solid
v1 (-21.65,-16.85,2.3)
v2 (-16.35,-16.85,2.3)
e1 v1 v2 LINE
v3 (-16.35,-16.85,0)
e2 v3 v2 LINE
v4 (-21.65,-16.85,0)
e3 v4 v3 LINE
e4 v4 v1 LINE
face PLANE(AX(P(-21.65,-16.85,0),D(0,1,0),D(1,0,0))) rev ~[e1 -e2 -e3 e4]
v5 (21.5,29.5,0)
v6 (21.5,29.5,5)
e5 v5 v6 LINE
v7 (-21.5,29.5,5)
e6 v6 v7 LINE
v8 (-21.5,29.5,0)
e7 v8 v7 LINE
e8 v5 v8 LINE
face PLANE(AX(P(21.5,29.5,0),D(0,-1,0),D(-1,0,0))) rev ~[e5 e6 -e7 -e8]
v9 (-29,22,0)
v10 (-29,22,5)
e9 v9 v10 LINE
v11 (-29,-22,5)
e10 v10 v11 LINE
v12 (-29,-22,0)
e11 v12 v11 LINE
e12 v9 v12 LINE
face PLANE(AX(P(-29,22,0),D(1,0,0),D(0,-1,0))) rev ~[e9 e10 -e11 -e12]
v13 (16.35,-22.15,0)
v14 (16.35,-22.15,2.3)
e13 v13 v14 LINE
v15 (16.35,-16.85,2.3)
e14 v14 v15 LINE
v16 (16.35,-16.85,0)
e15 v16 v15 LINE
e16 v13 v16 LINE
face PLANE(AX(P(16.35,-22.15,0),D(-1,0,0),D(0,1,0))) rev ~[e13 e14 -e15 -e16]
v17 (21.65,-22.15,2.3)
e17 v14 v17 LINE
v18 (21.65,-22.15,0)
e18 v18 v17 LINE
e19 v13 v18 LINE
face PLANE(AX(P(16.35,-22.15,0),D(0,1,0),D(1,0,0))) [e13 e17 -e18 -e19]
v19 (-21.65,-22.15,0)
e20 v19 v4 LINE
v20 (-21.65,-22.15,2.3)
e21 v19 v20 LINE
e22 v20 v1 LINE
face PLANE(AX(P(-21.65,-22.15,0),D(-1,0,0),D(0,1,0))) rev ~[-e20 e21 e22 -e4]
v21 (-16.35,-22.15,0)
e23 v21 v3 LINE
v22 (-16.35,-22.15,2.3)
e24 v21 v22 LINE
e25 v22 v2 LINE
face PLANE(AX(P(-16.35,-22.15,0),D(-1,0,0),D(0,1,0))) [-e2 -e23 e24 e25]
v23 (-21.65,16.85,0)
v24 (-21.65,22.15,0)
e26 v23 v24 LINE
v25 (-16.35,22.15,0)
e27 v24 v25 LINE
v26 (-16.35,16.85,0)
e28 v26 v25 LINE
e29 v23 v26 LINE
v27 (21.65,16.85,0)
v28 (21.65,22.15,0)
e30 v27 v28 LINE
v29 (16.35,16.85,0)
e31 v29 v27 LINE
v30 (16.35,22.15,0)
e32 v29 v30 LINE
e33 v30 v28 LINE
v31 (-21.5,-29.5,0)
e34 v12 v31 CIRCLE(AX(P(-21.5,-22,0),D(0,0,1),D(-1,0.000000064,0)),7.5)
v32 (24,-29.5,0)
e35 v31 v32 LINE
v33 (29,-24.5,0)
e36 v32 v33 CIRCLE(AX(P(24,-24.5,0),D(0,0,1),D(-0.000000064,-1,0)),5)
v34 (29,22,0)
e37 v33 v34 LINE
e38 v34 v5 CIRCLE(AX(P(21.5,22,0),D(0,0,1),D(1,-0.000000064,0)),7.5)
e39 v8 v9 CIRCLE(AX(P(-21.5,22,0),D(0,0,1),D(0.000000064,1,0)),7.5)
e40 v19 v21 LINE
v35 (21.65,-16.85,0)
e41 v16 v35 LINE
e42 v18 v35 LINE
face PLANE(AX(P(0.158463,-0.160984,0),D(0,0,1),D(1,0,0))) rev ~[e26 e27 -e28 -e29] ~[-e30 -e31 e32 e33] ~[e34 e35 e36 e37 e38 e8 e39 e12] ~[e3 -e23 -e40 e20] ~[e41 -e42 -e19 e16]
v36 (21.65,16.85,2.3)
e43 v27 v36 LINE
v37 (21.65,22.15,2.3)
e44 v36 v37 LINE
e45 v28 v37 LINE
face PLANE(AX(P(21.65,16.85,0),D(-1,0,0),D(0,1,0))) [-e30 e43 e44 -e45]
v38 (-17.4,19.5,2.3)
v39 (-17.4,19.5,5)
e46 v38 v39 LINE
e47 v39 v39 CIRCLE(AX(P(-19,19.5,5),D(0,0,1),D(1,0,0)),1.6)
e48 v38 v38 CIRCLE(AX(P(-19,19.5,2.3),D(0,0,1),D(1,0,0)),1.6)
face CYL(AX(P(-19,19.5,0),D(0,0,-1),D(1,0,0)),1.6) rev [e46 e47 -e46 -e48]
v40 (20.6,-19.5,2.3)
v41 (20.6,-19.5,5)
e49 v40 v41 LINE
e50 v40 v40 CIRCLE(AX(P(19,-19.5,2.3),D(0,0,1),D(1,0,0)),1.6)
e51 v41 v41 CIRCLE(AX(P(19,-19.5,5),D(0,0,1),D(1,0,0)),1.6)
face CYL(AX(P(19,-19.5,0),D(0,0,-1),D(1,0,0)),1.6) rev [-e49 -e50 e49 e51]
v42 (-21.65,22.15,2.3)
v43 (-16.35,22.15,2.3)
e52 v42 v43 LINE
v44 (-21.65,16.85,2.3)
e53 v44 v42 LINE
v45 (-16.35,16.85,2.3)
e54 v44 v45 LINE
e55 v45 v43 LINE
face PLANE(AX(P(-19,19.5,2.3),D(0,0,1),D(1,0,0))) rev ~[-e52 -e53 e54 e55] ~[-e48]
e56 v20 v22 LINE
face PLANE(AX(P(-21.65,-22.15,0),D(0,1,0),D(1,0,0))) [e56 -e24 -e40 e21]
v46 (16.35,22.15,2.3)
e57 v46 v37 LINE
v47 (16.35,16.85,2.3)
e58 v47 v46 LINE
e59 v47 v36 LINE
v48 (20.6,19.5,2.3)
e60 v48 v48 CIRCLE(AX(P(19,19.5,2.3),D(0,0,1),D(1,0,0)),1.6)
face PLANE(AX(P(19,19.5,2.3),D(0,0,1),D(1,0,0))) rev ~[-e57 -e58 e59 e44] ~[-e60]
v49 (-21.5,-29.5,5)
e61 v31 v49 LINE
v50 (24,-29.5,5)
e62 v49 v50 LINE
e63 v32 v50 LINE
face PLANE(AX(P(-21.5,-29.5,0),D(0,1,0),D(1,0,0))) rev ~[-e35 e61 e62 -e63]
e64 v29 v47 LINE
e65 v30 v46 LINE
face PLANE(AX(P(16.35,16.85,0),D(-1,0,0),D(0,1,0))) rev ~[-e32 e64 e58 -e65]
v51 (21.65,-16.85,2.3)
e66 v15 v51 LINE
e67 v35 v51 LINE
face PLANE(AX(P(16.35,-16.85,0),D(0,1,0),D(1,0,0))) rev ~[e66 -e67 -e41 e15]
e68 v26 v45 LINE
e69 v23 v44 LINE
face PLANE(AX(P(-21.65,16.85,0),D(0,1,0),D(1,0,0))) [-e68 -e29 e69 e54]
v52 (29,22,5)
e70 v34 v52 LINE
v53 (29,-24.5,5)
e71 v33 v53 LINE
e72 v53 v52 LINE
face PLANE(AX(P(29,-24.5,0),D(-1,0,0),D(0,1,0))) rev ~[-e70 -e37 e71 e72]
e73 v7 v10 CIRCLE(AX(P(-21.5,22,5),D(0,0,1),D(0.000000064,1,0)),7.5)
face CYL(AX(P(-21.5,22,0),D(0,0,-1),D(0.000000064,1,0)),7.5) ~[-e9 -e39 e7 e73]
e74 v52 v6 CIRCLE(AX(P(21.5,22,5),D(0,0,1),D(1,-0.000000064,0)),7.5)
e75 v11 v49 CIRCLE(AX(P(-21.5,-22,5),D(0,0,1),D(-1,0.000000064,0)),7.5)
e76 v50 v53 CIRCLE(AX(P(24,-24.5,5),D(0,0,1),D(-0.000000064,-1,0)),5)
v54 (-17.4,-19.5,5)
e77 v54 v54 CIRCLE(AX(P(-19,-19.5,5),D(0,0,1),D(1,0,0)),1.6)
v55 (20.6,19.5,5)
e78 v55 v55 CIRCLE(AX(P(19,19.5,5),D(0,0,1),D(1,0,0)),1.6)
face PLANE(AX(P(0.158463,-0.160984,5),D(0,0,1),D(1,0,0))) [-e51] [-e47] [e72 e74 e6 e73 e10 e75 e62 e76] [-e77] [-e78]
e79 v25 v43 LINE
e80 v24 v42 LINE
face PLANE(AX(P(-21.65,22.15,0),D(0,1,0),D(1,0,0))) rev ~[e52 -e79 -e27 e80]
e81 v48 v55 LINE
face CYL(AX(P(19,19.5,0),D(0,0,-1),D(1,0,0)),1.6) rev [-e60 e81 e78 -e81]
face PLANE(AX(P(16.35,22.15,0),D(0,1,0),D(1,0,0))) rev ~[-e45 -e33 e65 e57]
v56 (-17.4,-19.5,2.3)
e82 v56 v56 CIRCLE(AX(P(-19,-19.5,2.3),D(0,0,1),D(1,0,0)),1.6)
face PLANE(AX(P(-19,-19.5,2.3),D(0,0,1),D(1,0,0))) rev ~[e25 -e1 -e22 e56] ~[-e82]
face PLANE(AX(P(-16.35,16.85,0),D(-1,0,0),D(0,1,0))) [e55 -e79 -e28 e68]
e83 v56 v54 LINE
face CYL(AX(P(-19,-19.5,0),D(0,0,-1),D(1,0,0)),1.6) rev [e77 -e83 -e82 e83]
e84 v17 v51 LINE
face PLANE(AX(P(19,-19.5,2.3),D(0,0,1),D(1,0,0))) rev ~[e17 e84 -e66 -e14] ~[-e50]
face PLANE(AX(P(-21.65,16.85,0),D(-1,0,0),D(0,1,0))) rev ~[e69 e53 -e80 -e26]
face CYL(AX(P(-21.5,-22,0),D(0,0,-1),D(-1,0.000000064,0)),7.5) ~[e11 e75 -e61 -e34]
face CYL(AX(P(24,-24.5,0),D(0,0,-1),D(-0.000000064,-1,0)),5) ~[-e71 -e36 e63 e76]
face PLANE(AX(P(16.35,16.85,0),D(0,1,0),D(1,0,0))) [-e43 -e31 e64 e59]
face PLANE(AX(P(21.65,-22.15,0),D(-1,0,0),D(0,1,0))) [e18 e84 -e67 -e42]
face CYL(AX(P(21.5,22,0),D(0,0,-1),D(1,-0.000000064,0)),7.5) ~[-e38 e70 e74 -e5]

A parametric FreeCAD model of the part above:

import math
import FreeCAD as App
import Part
import Sketcher
from FreeCAD import Vector

doc = App.newDocument("Part")
body = doc.addObject("PartDesign::Body", "Body")

# Sketch on XY plane
sketch1 = doc.addObject("Sketcher::SketchObject", "Sketch")
body.addObject(sketch1)
sketch1.AttachmentSupport = (doc.XY_Plane, [""])
sketch1.MapMode = "FlatFace"
sketch1.addGeometry([
    Part.ArcOfCircle(Part.Circle(Vector(21.5, 22, 0), Vector(0, 0, 1), 7.5), math.radians(-0.000004), math.radians(90.000004)),  # 0
    Part.LineSegment(Vector(21.5, 29.5, 0), Vector(-21.5, 29.5, 0)),  # 1
    Part.ArcOfCircle(Part.Circle(Vector(-21.5, 22, 0), Vector(0, 0, 1), 7.5), math.radians(89.999996), math.radians(180.000004)),  # 2
    Part.LineSegment(Vector(-29, 22, 0), Vector(-29, -22, 0)),  # 3
    Part.ArcOfCircle(Part.Circle(Vector(-21.5, -22, 0), Vector(0, 0, 1), 7.5), math.radians(179.999996), math.radians(270.000004)),  # 4
    Part.LineSegment(Vector(-21.5, -29.5, 0), Vector(24, -29.5, 0)),  # 5
    Part.ArcOfCircle(Part.Circle(Vector(24, -24.5, 0), Vector(0, 0, 1), 5), math.radians(-90.000004), math.radians(0.000004)),  # 6
    Part.LineSegment(Vector(29, -24.5, 0), Vector(29, 22, 0)),  # 7
    Part.Circle(Vector(-19, -19.5, 0), Vector(0, 0, 1), 1.6),  # 8
    Part.Circle(Vector(19, -19.5, 0), Vector(0, 0, 1), 1.6),  # 9
    Part.Circle(Vector(-19, 19.5, 0), Vector(0, 0, 1), 1.6),  # 10
    Part.Circle(Vector(19, 19.5, 0), Vector(0, 0, 1), 1.6),  # 11
], False)
sketch1.addConstraint([
    Sketcher.Constraint("Tangent", 0, 2, 1, 1),
    Sketcher.Constraint("Tangent", 1, 2, 2, 1),
    Sketcher.Constraint("Tangent", 2, 2, 3, 1),
    Sketcher.Constraint("Tangent", 3, 2, 4, 1),
    Sketcher.Constraint("Tangent", 4, 2, 5, 1),
    Sketcher.Constraint("Tangent", 5, 2, 6, 1),
    Sketcher.Constraint("Tangent", 6, 2, 7, 1),
    Sketcher.Constraint("Tangent", 7, 2, 0, 1),
    Sketcher.Constraint("Horizontal", 1),
    Sketcher.Constraint("Vertical", 3),
    Sketcher.Constraint("Horizontal", 5),
    Sketcher.Constraint("Vertical", 7),
    Sketcher.Constraint("Equal", 0, 2),
    Sketcher.Constraint("Equal", 2, 4),
    Sketcher.Constraint("Equal", 8, 9),
    Sketcher.Constraint("Equal", 9, 10),
    Sketcher.Constraint("Equal", 10, 11),
    Sketcher.Constraint("Symmetric", 0, 3, 4, 3, -1, 1),
    Sketcher.Constraint("Symmetric", 9, 3, 10, 3, -1, 1),
    Sketcher.Constraint("Symmetric", 8, 3, 11, 3, -1, 1),
    Sketcher.Constraint("Symmetric", 8, 3, 9, 3, -2),
    Sketcher.Constraint("Radius", 6, 5.0),
    Sketcher.Constraint("Diameter", 8, 3.2),
    Sketcher.Constraint("Radius", 0, 7.5),
    Sketcher.Constraint("DistanceX", 1, 2, 1, 1, 43.0),
    Sketcher.Constraint("DistanceY", 3, 2, 3, 1, 44.0),
    Sketcher.Constraint("DistanceX", 8, 3, -1, 1, 19.0),
    Sketcher.Constraint("DistanceY", 6, 3, 8, 3, 5.0),
])
pad1 = doc.addObject("PartDesign::Pad", "Pad")
body.addObject(pad1)
pad1.Profile = sketch1
pad1.Length = 5

# Sketch on XY plane
sketch2 = doc.addObject("Sketcher::SketchObject", "Sketch001")
body.addObject(sketch2)
sketch2.AttachmentSupport = (doc.XY_Plane, [""])
sketch2.MapMode = "FlatFace"
sketch2.addGeometry([
    Part.LineSegment(Vector(-21.65, 22.15, 0), Vector(-21.65, 16.85, 0)),  # 0
    Part.LineSegment(Vector(-21.65, 16.85, 0), Vector(-16.35, 16.85, 0)),  # 1
    Part.LineSegment(Vector(-16.35, 16.85, 0), Vector(-16.35, 22.15, 0)),  # 2
    Part.LineSegment(Vector(-16.35, 22.15, 0), Vector(-21.65, 22.15, 0)),  # 3
    Part.Circle(Vector(-19, 19.5, 0), Vector(0, 0, 1), 1.6),  # 4
    Part.LineSegment(Vector(16.35, 22.15, 0), Vector(16.35, 16.85, 0)),  # 5
    Part.LineSegment(Vector(16.35, 16.85, 0), Vector(21.65, 16.85, 0)),  # 6
    Part.LineSegment(Vector(21.65, 16.85, 0), Vector(21.65, 22.15, 0)),  # 7
    Part.LineSegment(Vector(21.65, 22.15, 0), Vector(16.35, 22.15, 0)),  # 8
    Part.Circle(Vector(19, 19.5, 0), Vector(0, 0, 1), 1.6),  # 9
    Part.LineSegment(Vector(-21.65, -16.85, 0), Vector(-21.65, -22.15, 0)),  # 10
    Part.LineSegment(Vector(-21.65, -22.15, 0), Vector(-16.35, -22.15, 0)),  # 11
    Part.LineSegment(Vector(-16.35, -22.15, 0), Vector(-16.35, -16.85, 0)),  # 12
    Part.LineSegment(Vector(-16.35, -16.85, 0), Vector(-21.65, -16.85, 0)),  # 13
    Part.Circle(Vector(-19, -19.5, 0), Vector(0, 0, 1), 1.6),  # 14
    Part.LineSegment(Vector(16.35, -16.85, 0), Vector(16.35, -22.15, 0)),  # 15
    Part.LineSegment(Vector(16.35, -22.15, 0), Vector(21.65, -22.15, 0)),  # 16
    Part.LineSegment(Vector(21.65, -22.15, 0), Vector(21.65, -16.85, 0)),  # 17
    Part.LineSegment(Vector(21.65, -16.85, 0), Vector(16.35, -16.85, 0)),  # 18
    Part.Circle(Vector(19, -19.5, 0), Vector(0, 0, 1), 1.6),  # 19
], False)
sketch2.addConstraint([
    Sketcher.Constraint("Coincident", 0, 2, 1, 1),
    Sketcher.Constraint("Coincident", 1, 2, 2, 1),
    Sketcher.Constraint("Coincident", 2, 2, 3, 1),
    Sketcher.Constraint("Coincident", 3, 2, 0, 1),
    Sketcher.Constraint("Coincident", 5, 2, 6, 1),
    Sketcher.Constraint("Coincident", 6, 2, 7, 1),
    Sketcher.Constraint("Coincident", 7, 2, 8, 1),
    Sketcher.Constraint("Coincident", 8, 2, 5, 1),
    Sketcher.Constraint("Coincident", 10, 2, 11, 1),
    Sketcher.Constraint("Coincident", 11, 2, 12, 1),
    Sketcher.Constraint("Coincident", 12, 2, 13, 1),
    Sketcher.Constraint("Coincident", 13, 2, 10, 1),
    Sketcher.Constraint("Coincident", 15, 2, 16, 1),
    Sketcher.Constraint("Coincident", 16, 2, 17, 1),
    Sketcher.Constraint("Coincident", 17, 2, 18, 1),
    Sketcher.Constraint("Coincident", 18, 2, 15, 1),
    Sketcher.Constraint("Vertical", 0),
    Sketcher.Constraint("Horizontal", 1),
    Sketcher.Constraint("Vertical", 2),
    Sketcher.Constraint("Horizontal", 3),
    Sketcher.Constraint("Vertical", 5),
    Sketcher.Constraint("Horizontal", 6),
    Sketcher.Constraint("Vertical", 7),
    Sketcher.Constraint("Horizontal", 8),
    Sketcher.Constraint("Vertical", 10),
    Sketcher.Constraint("Horizontal", 11),
    Sketcher.Constraint("Vertical", 12),
    Sketcher.Constraint("Horizontal", 13),
    Sketcher.Constraint("Vertical", 15),
    Sketcher.Constraint("Horizontal", 16),
    Sketcher.Constraint("Vertical", 17),
    Sketcher.Constraint("Horizontal", 18),
    Sketcher.Constraint("Equal", 4, 9),
    Sketcher.Constraint("Equal", 9, 14),
    Sketcher.Constraint("Equal", 14, 19),
    Sketcher.Constraint("Symmetric", 9, 3, 14, 3, -1, 1),
    Sketcher.Constraint("Symmetric", 4, 3, 19, 3, -1, 1),
    Sketcher.Constraint("Symmetric", 7, 2, 10, 2, -1, 1),
    Sketcher.Constraint("Symmetric", 5, 2, 12, 2, -1, 1),
    Sketcher.Constraint("Symmetric", 2, 2, 15, 2, -1, 1),
    Sketcher.Constraint("Symmetric", 0, 2, 17, 2, -1, 1),
    Sketcher.Constraint("Symmetric", 4, 3, 9, 3, -2),
    Sketcher.Constraint("Symmetric", 1, 2, 5, 2, -2),
    Sketcher.Constraint("Symmetric", 3, 2, 7, 2, -2),
    Sketcher.Constraint("Equal", 18, 0),
    Sketcher.Constraint("Diameter", 4, 3.2),
    Sketcher.Constraint("DistanceX", 1, 1, 1, 2, 5.3),
    Sketcher.Constraint("DistanceX", 4, 3, -1, 1, 19.0),
    Sketcher.Constraint("DistanceY", 14, 3, 4, 3, 39.0),
    Sketcher.Constraint("DistanceX", 1, 2, 6, 2, 38.0),
    Sketcher.Constraint("DistanceY", 10, 2, 0, 2, 39.0),
])
pocket1 = doc.addObject("PartDesign::Pocket", "Pocket")
body.addObject(pocket1)
pocket1.Profile = sketch2
pocket1.Length = 2.3
pocket1.Reversed = True

doc.recompute()
